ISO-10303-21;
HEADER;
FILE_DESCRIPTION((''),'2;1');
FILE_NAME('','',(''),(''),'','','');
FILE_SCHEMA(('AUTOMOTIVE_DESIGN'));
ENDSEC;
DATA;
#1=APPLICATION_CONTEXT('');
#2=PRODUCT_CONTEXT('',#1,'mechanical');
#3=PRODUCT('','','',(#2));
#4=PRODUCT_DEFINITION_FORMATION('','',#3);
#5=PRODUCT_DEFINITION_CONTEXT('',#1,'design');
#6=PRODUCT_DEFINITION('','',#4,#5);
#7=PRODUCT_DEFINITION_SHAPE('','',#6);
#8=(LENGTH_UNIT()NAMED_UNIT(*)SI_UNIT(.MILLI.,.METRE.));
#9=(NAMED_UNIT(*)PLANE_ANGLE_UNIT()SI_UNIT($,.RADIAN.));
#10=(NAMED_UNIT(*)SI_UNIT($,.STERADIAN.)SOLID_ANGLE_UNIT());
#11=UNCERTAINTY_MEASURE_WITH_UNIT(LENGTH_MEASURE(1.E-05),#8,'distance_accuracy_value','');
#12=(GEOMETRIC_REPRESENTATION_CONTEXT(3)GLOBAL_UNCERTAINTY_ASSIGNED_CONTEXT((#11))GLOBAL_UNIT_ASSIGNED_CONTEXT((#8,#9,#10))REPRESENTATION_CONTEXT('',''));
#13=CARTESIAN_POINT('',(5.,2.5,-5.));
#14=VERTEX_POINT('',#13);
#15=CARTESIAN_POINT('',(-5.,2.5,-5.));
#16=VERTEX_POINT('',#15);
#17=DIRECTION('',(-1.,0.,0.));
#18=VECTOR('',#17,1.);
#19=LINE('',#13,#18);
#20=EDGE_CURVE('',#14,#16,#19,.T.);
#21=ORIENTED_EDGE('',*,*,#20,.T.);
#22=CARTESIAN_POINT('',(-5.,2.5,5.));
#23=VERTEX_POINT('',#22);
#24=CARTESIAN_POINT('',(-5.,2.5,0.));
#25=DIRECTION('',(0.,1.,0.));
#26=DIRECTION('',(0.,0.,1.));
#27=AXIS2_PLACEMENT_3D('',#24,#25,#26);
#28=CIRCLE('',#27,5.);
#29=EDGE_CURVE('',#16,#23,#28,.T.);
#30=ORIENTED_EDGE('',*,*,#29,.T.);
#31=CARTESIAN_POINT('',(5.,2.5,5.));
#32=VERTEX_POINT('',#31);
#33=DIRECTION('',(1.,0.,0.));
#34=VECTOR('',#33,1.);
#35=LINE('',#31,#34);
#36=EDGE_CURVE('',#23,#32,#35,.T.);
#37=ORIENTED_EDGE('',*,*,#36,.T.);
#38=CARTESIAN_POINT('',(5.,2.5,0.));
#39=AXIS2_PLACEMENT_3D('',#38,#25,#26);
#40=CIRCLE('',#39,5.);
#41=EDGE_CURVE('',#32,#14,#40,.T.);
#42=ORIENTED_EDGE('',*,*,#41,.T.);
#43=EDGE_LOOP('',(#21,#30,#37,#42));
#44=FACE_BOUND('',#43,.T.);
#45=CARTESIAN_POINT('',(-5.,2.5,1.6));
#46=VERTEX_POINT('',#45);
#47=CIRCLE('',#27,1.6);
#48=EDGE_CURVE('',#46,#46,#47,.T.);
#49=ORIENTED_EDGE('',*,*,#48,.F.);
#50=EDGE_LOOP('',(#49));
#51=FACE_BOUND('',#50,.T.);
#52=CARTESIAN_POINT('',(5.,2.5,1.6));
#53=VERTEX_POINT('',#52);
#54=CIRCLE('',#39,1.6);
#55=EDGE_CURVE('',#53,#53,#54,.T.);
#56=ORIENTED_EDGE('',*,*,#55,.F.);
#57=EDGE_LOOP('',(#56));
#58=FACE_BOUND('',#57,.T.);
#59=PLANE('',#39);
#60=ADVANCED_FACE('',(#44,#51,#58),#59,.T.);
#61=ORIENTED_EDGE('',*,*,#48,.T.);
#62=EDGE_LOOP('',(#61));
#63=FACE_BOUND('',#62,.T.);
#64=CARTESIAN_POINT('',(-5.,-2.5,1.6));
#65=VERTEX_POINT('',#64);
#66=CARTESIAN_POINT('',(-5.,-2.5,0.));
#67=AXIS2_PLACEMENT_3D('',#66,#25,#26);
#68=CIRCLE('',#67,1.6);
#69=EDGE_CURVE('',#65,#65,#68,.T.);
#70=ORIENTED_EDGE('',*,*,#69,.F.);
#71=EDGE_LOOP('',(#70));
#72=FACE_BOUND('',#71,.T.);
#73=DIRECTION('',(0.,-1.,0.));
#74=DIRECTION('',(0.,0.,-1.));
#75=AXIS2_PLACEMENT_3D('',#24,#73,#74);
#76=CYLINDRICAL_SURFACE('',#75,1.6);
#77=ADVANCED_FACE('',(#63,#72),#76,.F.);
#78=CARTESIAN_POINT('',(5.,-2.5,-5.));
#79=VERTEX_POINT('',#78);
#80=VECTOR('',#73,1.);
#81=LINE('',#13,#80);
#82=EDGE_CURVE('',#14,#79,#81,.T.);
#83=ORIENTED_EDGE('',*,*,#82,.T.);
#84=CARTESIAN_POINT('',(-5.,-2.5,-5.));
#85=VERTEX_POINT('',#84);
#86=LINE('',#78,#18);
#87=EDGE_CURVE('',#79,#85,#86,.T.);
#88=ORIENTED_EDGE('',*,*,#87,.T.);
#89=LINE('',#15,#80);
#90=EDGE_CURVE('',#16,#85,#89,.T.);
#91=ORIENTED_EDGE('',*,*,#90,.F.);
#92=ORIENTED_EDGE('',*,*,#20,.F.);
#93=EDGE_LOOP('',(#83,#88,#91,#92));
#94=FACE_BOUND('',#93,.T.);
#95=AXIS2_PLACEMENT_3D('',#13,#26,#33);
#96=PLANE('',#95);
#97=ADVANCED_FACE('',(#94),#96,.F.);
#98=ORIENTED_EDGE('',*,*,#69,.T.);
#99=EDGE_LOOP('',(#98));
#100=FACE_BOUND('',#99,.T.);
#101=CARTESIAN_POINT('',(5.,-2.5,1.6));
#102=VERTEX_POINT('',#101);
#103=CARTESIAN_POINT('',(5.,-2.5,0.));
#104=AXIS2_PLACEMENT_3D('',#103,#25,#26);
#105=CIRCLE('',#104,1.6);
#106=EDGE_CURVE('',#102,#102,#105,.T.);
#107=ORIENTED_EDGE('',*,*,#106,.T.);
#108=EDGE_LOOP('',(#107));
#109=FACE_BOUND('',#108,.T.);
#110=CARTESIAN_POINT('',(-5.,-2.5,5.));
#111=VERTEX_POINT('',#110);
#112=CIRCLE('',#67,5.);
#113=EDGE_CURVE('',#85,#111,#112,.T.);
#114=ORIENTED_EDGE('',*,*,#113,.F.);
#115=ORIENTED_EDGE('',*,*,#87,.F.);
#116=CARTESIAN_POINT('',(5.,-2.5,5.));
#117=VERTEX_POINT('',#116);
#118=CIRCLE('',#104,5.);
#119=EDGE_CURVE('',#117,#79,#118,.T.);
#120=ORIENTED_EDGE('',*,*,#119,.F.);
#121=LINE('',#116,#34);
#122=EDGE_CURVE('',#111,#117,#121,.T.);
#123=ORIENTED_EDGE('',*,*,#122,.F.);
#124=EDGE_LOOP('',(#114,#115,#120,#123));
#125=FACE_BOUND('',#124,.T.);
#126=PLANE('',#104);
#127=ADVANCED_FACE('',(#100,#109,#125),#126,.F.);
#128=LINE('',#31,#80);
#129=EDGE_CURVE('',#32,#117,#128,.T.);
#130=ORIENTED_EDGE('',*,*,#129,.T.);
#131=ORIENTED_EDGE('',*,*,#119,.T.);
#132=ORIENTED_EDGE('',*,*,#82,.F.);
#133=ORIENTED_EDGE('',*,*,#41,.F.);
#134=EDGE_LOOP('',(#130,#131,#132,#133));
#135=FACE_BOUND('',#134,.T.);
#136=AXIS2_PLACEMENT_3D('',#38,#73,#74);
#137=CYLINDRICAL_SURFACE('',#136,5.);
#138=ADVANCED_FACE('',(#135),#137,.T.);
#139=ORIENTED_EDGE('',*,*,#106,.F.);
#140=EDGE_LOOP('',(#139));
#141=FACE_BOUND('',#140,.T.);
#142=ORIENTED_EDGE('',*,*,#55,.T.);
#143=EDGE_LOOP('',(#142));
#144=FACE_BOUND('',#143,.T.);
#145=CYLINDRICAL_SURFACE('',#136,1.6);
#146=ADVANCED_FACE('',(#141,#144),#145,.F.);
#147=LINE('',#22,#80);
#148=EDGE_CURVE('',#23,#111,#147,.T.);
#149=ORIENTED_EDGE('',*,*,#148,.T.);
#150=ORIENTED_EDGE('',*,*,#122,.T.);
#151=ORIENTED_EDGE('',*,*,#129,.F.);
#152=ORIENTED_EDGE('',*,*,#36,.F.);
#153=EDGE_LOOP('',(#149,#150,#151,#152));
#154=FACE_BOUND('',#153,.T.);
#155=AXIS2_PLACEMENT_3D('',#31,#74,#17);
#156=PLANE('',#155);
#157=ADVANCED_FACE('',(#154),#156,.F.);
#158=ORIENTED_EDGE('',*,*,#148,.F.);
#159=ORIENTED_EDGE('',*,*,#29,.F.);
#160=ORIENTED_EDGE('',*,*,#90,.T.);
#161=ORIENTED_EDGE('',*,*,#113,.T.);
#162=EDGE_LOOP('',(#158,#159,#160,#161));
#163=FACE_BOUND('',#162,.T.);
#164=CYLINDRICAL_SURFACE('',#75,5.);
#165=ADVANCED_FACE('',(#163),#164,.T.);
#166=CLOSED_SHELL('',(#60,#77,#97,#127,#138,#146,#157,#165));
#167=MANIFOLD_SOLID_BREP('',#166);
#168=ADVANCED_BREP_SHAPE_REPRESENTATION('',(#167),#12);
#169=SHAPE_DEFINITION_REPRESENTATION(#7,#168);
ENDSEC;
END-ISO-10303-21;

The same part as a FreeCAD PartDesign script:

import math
import FreeCAD as App
import Part
import Sketcher
Q = App.Units.Quantity

doc = App.newDocument("Part")
body = doc.addObject("PartDesign::Body", "Body")

sketch1 = doc.addObject("Sketcher::SketchObject", "Sketch")
body.addObject(sketch1)
sketch1.AttachmentSupport = (doc.XZ_Plane, [""])
sketch1.MapMode = "FlatFace"
sketch1.addGeometry([
    Part.LineSegment(App.Vector(-5, 5, 0), App.Vector(5, 5, 0)),
    Part.ArcOfCircle(Part.Circle(App.Vector(5, 0, 0), App.Vector(0, 0, 1), 5), math.radians(-90), math.radians(90)),
    Part.LineSegment(App.Vector(5, -5, 0), App.Vector(-5, -5, 0)),
    Part.ArcOfCircle(Part.Circle(App.Vector(-5, 0, 0), App.Vector(0, 0, 1), 5), math.radians(90), math.radians(270)),
    Part.Circle(App.Vector(5, 0, 0), App.Vector(0, 0, 1), 1.6),
    Part.Circle(App.Vector(-5, 0, 0), App.Vector(0, 0, 1), 1.6),
], False)
sketch1.addConstraint([
    Sketcher.Constraint("Tangent", 0, 2, 1, 2),
    Sketcher.Constraint("Tangent", 1, 1, 2, 1),
    Sketcher.Constraint("Tangent", 2, 2, 3, 2),
    Sketcher.Constraint("Tangent", 3, 1, 0, 1),
    Sketcher.Constraint("Horizontal", 0),
    Sketcher.Constraint("Horizontal", 2),
    Sketcher.Constraint("Coincident", 4, 3, 1, 3),
    Sketcher.Constraint("Coincident", 5, 3, 3, 3),
    Sketcher.Constraint("Equal", 4, 5),
    Sketcher.Constraint("Symmetric", 1, 3, 3, 3, -1, 1),
    Sketcher.Constraint("Radius", 1, Q("5 mm")),
    Sketcher.Constraint("Diameter", 4, Q("3.2 mm")),
    Sketcher.Constraint("DistanceX", 0, 1, 0, 2, Q("10 mm")),
])
pad1 = doc.addObject("PartDesign::Pad", "Pad")
body.addObject(pad1)
pad1.Profile = sketch1
pad1.Length = 5
pad1.Midplane = True

doc.recompute()
